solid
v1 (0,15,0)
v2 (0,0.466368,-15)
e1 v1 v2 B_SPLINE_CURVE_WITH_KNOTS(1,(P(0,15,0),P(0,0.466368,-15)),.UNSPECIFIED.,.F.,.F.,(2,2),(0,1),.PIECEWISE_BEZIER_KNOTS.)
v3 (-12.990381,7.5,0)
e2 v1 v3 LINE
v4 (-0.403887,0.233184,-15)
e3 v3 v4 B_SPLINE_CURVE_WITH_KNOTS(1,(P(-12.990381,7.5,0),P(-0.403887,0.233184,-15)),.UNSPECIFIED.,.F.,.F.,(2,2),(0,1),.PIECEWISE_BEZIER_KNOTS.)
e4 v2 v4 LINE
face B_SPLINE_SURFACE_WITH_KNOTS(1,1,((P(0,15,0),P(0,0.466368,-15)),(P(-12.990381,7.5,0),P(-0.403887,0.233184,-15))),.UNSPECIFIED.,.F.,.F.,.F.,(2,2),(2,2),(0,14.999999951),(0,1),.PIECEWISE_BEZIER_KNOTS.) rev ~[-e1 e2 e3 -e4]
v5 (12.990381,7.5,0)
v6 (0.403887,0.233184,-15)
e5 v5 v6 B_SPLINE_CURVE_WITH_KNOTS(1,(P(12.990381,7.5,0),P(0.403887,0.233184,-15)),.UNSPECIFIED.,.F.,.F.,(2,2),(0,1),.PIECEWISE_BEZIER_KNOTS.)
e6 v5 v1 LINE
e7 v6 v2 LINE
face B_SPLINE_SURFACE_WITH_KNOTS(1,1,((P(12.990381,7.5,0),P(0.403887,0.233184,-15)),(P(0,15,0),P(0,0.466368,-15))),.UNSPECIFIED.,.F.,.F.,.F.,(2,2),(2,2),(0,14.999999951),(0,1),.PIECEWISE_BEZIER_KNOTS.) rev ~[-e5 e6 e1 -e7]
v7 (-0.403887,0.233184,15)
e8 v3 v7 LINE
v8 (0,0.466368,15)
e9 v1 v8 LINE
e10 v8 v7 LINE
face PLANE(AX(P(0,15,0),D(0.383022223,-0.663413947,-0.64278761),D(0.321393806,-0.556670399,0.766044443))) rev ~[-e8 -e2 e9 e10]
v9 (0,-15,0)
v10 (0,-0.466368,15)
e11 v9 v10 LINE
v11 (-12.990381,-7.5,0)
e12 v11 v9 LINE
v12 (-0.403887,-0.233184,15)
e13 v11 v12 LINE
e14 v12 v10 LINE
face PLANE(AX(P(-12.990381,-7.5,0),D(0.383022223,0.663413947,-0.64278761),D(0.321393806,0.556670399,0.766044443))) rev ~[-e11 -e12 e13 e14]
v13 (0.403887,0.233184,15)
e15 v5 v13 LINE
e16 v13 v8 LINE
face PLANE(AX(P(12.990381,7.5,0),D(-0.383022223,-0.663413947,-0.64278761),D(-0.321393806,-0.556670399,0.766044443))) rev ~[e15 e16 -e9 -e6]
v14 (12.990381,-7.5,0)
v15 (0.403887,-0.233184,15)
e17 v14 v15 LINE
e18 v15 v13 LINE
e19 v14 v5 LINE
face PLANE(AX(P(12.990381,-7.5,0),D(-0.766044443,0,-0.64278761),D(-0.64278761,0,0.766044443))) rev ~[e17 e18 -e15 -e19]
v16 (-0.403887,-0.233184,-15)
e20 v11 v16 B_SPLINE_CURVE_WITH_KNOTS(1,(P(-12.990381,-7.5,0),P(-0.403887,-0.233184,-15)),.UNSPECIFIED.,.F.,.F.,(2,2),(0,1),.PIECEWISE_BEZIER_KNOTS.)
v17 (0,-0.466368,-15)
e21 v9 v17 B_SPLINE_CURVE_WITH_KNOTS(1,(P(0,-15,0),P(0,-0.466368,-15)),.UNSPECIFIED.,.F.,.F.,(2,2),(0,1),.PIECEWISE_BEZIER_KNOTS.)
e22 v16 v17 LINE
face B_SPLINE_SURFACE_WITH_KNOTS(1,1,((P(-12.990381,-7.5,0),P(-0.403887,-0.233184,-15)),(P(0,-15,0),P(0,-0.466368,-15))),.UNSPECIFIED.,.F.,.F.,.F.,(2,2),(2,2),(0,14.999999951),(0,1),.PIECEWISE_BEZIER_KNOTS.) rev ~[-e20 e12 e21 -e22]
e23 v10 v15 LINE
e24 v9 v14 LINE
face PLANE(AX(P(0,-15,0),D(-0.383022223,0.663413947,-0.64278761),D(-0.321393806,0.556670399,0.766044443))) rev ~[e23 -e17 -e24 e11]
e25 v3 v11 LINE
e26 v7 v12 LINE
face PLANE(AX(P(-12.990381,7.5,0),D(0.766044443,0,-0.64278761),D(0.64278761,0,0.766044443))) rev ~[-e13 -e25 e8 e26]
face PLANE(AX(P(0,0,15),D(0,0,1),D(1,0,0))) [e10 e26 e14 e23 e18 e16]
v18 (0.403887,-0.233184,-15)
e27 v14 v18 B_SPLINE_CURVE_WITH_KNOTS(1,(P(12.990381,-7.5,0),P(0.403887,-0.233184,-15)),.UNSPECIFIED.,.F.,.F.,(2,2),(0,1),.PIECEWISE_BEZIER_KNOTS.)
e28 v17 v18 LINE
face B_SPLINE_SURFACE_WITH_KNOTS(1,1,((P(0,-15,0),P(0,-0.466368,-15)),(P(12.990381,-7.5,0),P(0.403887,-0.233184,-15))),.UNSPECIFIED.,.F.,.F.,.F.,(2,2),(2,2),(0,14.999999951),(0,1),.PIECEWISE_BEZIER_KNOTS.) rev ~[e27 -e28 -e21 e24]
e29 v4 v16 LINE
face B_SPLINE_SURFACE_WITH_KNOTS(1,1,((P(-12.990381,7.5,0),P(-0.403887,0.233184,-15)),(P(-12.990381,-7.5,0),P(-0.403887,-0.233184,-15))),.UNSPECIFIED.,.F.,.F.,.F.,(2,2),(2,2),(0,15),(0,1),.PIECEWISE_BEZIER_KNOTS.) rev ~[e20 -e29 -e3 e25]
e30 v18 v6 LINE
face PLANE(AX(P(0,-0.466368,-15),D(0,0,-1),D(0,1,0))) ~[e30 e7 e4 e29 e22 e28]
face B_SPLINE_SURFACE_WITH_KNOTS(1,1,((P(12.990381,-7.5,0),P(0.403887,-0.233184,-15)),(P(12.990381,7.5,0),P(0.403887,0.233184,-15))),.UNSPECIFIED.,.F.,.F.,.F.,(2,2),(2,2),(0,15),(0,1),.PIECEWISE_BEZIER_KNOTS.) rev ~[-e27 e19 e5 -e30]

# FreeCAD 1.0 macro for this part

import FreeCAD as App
import Part
import Sketcher

V = App.Vector
Q = App.Units.Quantity

doc = App.newDocument("Part")
body = doc.addObject("PartDesign::Body", "Body")

sketch1 = doc.addObject("Sketcher::SketchObject", "Sketch")
body.addObject(sketch1)
sketch1.AttachmentSupport = (doc.XY_Plane, [""])
sketch1.MapMode = "FlatFace"
sketch1.addGeometry(Part.LineSegment(V(0, -15, 0), V(13, -8, 0)), False)
sketch1.addGeometry(Part.LineSegment(V(13, -8, 0), V(13, 8, 0)), False)
sketch1.addGeometry(Part.LineSegment(V(13, 8, 0), V(0, 15, 0)), False)
sketch1.addGeometry(Part.LineSegment(V(0, 15, 0), V(-13, 8, 0)), False)
sketch1.addGeometry(Part.LineSegment(V(-13, 8, 0), V(-13, -8, 0)), False)
sketch1.addGeometry(Part.LineSegment(V(-13, -8, 0), V(0, -15, 0)), False)
sketch1.addConstraint(Sketcher.Constraint("Coincident", 0, 2, 1, 1))
sketch1.addConstraint(Sketcher.Constraint("Coincident", 1, 2, 2, 1))
sketch1.addConstraint(Sketcher.Constraint("Coincident", 2, 2, 3, 1))
sketch1.addConstraint(Sketcher.Constraint("Coincident", 3, 2, 4, 1))
sketch1.addConstraint(Sketcher.Constraint("Coincident", 4, 2, 5, 1))
sketch1.addConstraint(Sketcher.Constraint("Coincident", 5, 2, 0, 1))
sketch1.addConstraint(Sketcher.Constraint("Vertical", 1))
sketch1.addConstraint(Sketcher.Constraint("Vertical", 4))
sketch1.addConstraint(Sketcher.Constraint("Symmetric", 0, 2, 3, 2, -1, 1))
sketch1.addConstraint(Sketcher.Constraint("Symmetric", 2, 2, 5, 2, -1, 1))
sketch1.addConstraint(Sketcher.Constraint("PointOnObject", 2, 2, -2))
sketch1.addConstraint(Sketcher.Constraint("Parallel", 2, 5))
sketch1.addConstraint(Sketcher.Constraint("Horizontal", 1, 2, 3, 2))
sketch1.addConstraint(Sketcher.Constraint("DistanceY", 1, 1, 1, 2, Q("15 mm")))
sketch1.addConstraint(Sketcher.Constraint("Angle", 0, Q("30 deg")))
sketch1.addConstraint(Sketcher.Constraint("Distance", 0, Q("15 mm")))
pad1 = doc.addObject("PartDesign::Pad", "Pad")
body.addObject(pad1)
pad1.Profile = sketch1
pad1.Length = 30
pad1.Midplane = True
pad1.TaperAngle = -40

doc.recompute()
